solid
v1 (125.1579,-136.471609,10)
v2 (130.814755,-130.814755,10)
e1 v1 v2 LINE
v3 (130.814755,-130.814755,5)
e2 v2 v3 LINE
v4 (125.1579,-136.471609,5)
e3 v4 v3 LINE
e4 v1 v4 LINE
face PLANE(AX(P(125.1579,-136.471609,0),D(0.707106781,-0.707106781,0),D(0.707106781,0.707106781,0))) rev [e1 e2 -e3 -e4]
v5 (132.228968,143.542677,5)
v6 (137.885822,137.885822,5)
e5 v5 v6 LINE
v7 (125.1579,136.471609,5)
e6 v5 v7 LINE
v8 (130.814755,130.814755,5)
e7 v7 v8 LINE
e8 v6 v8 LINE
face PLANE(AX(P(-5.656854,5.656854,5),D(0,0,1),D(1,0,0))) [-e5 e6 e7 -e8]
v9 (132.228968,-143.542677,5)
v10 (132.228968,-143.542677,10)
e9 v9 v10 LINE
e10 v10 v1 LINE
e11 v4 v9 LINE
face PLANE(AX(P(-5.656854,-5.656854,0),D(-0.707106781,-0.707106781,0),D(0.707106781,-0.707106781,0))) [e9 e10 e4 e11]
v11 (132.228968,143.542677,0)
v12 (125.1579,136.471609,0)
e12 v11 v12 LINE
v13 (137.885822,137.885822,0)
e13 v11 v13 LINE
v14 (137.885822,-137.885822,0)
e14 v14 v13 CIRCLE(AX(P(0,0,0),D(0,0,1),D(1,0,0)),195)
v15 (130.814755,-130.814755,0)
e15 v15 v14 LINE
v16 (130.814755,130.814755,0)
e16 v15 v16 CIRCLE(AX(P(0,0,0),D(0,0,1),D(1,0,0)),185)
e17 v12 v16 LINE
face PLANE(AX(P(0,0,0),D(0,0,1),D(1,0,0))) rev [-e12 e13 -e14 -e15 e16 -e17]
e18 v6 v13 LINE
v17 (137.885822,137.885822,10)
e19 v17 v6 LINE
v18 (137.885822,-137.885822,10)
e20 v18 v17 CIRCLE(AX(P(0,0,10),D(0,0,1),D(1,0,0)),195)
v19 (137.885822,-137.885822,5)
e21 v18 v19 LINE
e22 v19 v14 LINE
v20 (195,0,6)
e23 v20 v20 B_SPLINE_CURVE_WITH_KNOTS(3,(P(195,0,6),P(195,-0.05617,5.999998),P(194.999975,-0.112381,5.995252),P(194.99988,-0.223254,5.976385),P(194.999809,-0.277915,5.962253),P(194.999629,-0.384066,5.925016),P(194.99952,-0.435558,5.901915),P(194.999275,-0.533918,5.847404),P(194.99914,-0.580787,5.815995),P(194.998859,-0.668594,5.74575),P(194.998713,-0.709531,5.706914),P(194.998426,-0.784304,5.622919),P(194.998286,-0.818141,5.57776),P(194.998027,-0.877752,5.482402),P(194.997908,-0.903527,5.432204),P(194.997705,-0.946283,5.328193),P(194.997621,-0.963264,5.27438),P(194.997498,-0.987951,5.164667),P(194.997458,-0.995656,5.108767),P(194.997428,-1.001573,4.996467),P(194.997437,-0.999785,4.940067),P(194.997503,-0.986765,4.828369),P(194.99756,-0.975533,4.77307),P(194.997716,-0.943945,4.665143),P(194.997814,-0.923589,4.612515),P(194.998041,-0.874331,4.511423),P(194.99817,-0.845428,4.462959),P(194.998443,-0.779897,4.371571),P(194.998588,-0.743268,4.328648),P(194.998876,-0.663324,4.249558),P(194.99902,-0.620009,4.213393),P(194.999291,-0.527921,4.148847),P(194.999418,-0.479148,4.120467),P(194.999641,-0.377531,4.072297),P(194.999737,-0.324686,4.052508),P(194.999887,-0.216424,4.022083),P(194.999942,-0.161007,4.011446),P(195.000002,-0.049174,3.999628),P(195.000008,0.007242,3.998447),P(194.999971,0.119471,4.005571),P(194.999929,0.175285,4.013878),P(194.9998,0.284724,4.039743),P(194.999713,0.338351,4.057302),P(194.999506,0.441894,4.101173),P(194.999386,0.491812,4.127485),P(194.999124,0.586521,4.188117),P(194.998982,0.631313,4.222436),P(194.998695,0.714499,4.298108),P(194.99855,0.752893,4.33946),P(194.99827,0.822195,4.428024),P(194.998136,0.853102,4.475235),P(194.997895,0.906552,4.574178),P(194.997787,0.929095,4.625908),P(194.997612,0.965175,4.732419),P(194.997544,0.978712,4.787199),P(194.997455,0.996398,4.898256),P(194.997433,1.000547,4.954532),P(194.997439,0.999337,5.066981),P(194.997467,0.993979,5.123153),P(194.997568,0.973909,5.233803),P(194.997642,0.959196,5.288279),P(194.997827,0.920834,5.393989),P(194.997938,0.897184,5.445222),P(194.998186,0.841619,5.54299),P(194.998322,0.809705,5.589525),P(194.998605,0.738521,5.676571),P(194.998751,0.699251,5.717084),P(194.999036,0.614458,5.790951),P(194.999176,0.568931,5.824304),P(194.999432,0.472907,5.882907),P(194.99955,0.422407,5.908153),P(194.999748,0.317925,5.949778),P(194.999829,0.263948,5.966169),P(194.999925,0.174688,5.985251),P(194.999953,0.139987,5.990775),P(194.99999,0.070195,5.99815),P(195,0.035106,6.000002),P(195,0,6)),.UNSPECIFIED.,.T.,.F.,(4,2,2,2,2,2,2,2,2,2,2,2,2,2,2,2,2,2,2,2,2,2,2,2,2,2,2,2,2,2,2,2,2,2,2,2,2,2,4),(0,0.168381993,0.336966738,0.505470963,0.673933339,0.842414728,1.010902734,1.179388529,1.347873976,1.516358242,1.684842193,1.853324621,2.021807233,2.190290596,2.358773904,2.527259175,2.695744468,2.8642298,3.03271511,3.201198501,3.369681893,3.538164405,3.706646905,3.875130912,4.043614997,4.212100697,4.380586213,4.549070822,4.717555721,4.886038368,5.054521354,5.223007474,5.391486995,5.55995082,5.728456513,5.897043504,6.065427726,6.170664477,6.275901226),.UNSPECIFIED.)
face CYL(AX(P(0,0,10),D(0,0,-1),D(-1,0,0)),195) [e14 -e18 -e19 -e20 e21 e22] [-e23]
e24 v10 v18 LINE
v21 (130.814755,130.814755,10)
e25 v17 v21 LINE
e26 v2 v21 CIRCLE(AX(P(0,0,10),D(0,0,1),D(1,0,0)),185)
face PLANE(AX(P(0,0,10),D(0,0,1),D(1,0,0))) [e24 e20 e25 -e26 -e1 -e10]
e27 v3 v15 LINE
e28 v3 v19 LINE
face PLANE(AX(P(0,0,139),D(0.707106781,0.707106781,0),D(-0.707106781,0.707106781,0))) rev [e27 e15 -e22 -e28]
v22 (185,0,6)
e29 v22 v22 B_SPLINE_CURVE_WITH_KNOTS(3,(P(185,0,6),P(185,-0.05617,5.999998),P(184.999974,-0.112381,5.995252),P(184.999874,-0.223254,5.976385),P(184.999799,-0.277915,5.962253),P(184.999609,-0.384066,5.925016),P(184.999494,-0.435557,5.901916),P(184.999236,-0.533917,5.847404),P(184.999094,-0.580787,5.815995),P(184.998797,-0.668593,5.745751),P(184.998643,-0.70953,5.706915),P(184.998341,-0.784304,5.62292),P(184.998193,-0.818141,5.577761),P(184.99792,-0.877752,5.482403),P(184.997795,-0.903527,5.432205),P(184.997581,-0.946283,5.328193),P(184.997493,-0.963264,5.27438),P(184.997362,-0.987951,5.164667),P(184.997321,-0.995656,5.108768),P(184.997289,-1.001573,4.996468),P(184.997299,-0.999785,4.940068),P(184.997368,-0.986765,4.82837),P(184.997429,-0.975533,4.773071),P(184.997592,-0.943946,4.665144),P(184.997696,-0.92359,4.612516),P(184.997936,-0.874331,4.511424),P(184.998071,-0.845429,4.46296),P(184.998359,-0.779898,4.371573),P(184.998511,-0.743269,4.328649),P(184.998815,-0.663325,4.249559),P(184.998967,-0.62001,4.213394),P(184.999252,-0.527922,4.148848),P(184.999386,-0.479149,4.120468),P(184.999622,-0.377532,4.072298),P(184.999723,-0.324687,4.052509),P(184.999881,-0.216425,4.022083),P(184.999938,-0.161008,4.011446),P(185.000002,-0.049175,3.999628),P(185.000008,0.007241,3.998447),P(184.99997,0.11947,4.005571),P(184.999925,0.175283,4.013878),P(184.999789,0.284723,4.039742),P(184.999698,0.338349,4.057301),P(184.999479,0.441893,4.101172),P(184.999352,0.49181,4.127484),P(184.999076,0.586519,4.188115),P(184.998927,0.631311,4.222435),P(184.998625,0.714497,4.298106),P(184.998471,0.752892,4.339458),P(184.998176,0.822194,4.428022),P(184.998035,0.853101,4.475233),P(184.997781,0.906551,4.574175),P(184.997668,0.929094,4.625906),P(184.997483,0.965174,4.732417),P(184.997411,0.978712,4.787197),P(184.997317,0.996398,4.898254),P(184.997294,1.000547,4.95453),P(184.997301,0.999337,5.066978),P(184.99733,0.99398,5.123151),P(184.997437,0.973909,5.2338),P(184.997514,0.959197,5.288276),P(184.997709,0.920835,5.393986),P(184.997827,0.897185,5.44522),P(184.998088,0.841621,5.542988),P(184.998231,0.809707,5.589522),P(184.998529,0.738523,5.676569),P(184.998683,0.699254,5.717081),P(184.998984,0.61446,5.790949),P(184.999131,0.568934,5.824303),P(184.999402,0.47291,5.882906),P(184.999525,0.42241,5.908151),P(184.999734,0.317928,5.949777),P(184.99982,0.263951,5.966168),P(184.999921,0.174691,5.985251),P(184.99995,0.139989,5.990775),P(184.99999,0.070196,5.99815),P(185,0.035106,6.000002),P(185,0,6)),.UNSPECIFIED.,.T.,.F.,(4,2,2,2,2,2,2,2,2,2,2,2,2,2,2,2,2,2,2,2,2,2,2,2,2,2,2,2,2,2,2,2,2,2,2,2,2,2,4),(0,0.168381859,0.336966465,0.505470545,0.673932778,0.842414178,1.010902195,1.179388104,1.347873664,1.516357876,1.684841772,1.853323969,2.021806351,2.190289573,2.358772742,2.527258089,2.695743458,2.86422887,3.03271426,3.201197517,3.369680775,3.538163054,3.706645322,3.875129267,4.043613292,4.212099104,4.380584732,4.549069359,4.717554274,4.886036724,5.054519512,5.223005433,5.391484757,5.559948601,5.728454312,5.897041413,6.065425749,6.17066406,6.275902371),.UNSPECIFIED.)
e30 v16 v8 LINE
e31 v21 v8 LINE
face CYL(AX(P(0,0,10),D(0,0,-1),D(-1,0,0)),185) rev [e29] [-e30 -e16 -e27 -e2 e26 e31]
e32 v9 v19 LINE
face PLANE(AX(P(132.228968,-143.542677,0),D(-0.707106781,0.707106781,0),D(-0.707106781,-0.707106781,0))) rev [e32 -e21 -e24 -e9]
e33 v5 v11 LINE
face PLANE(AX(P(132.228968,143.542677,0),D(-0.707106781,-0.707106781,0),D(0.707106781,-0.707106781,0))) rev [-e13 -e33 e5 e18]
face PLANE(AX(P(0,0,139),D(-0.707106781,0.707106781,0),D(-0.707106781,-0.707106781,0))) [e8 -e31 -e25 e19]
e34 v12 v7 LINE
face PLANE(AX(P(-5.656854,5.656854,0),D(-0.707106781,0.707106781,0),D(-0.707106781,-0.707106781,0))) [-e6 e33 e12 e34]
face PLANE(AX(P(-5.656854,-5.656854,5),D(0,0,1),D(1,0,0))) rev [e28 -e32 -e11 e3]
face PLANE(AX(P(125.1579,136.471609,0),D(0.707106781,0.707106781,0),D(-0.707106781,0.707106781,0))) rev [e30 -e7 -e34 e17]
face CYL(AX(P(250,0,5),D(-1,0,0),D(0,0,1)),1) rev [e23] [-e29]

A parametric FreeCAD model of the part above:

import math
import FreeCAD as App
import Part
import Sketcher

V = App.Vector
Q = App.Units.Quantity

doc = App.newDocument("Part")
params = doc.addObject("Spreadsheet::Sheet", "Params")
for row, (alias, value) in enumerate([
    ("sketch1_diameter", "390 mm"),
    ("sketch1_diameter2", "370 mm"),
    ("pad1_length", "10 mm"),
    ("sketch2_diameter", "2 mm"),
    ("sketch3_diameter", "2 mm"),
    ("sketch4_radius", "195 mm"),
    ("sketch4_radius2", "185 mm"),
    ("pocket3_length", "139 mm"),
    ("sketch5_width", "5 mm"),
    ("sketch5_height", "10 mm"),
    ("pad2_length", "8 mm"),
    ("sketch6_width", "5 mm"),
    ("sketch6_height", "10 mm"),
    ("pad3_length", "8 mm"),
], start=1):
    params.set(f"A{row}", alias)
    params.set(f"B{row}", "=" + value)
    params.setAlias(f"B{row}", alias)

body = doc.addObject("PartDesign::Body", "Body")

# Sketch on XY plane
sketch1 = body.newObject("Sketcher::SketchObject", "Sketch")
sketch1.AttachmentSupport = (doc.getObject("XY_Plane"), [""])
sketch1.MapMode = "FlatFace"
sketch1.addGeometry(Part.Circle(V(0, 0, 0), V(0, 0, 1), 195), False)
sketch1.addGeometry(Part.Circle(V(0, 0, 0), V(0, 0, 1), 185), False)
sketch1.addConstraint(Sketcher.Constraint("Coincident", 0, 3, -1, 1))
sketch1.addConstraint(Sketcher.Constraint("Coincident", 1, 3, -1, 1))
sketch1.addConstraint(Sketcher.Constraint("Diameter", 0, Q("390 mm")))
sketch1.addConstraint(Sketcher.Constraint("Diameter", 1, Q("370 mm")))
sketch1.setExpression("Constraints[2]", "Params.sketch1_diameter")
sketch1.setExpression("Constraints[3]", "Params.sketch1_diameter2")
pad1 = body.newObject("PartDesign::Pad", "Pad")
pad1.Profile = sketch1
pad1.setExpression("Length", "Params.pad1_length")

# Sketch on YZ plane
sketch2 = body.newObject("Sketcher::SketchObject", "Sketch001")
sketch2.AttachmentSupport = (doc.getObject("YZ_Plane"), [""])
sketch2.MapMode = "FlatFace"
sketch2.addGeometry(Part.Circle(V(0, 5, 0), V(0, 0, 1), 1), False)
sketch2.addConstraint(Sketcher.Constraint("PointOnObject", 0, 3, -2))
sketch2.addConstraint(Sketcher.Constraint("Diameter", 0, Q("2 mm")))
sketch2.addConstraint(Sketcher.Constraint("DistanceY", -1, 1, 0, 3, Q("5 mm")))
sketch2.setExpression("Constraints[1]", "Params.sketch2_diameter")
pocket1 = body.newObject("PartDesign::Pocket", "Pocket")
pocket1.Profile = sketch2
pocket1.Type = "ThroughAll"
pocket1.Midplane = True

# Sketch on XZ plane
sketch3 = body.newObject("Sketcher::SketchObject", "Sketch002")
sketch3.AttachmentSupport = (doc.getObject("XZ_Plane"), [""])
sketch3.MapMode = "FlatFace"
sketch3.addGeometry(Part.Circle(V(0, 5, 0), V(0, 0, 1), 1), False)
sketch3.addConstraint(Sketcher.Constraint("PointOnObject", 0, 3, -2))
sketch3.addConstraint(Sketcher.Constraint("Diameter", 0, Q("2 mm")))
sketch3.addConstraint(Sketcher.Constraint("DistanceY", -1, 1, 0, 3, Q("5 mm")))
sketch3.setExpression("Constraints[1]", "Params.sketch3_diameter")
pocket2 = body.newObject("PartDesign::Pocket", "Pocket001")
pocket2.Profile = sketch3
pocket2.Type = "ThroughAll"
pocket2.Midplane = True

# Sketch on XY plane
sketch4 = body.newObject("Sketcher::SketchObject", "Sketch003")
sketch4.AttachmentSupport = (doc.getObject("XY_Plane"), [""])
sketch4.MapMode = "FlatFace"
sketch4.addGeometry(Part.ArcOfCircle(Part.Circle(V(0, 0, 0), V(0, 0, 1), 195), math.radians(45), math.radians(315)), False)
sketch4.addGeometry(Part.LineSegment(V(138, 138, 0), V(131, 131, 0)), False)
sketch4.addGeometry(Part.ArcOfCircle(Part.Circle(V(0, 0, 0), V(0, 0, 1), 185), math.radians(45), math.radians(315)), False)
sketch4.addGeometry(Part.LineSegment(V(131, -131, 0), V(138, -138, 0)), False)
sketch4.addConstraint(Sketcher.Constraint("Coincident", 0, 1, 1, 1))
sketch4.addConstraint(Sketcher.Constraint("Coincident", 1, 2, 2, 1))
sketch4.addConstraint(Sketcher.Constraint("Coincident", 2, 2, 3, 1))
sketch4.addConstraint(Sketcher.Constraint("Coincident", 3, 2, 0, 2))
sketch4.addConstraint(Sketcher.Constraint("Coincident", 0, 3, -1, 1))
sketch4.addConstraint(Sketcher.Constraint("Coincident", 2, 3, -1, 1))
sketch4.addConstraint(Sketcher.Constraint("Perpendicular", 1, 3))
sketch4.addConstraint(Sketcher.Constraint("Vertical", 1, 2, 2, 2))
sketch4.addConstraint(Sketcher.Constraint("Vertical", 0, 1, 3, 2))
sketch4.addConstraint(Sketcher.Constraint("Radius", 0, Q("195 mm")))
sketch4.addConstraint(Sketcher.Constraint("Radius", 2, Q("185 mm")))
sketch4.addConstraint(Sketcher.Constraint("DistanceY", 2, 2, 1, 2, Q("261.629509 mm")))
sketch4.setExpression("Constraints[9]", "Params.sketch4_radius")
sketch4.setExpression("Constraints[10]", "Params.sketch4_radius2")
pocket3 = body.newObject("PartDesign::Pocket", "Pocket002")
pocket3.Profile = sketch4
pocket3.setExpression("Length", "Params.pocket3_length")
pocket3.Reversed = True

# Sketch on an angled plane
sketch5 = body.newObject("Sketcher::SketchObject", "Sketch004")
sketch5.Placement = App.Placement(V(0, 0, 0), App.Rotation(V(0, 0, 1), V(-0.707106781, 0.707106781, 0), V(-0.707106781, -0.707106781, 0), "ZXY"))
sketch5.addGeometry(Part.LineSegment(V(5, -185, 0), V(5, -195, 0)), False)
sketch5.addGeometry(Part.LineSegment(V(5, -195, 0), V(10, -195, 0)), False)
sketch5.addGeometry(Part.LineSegment(V(10, -195, 0), V(10, -185, 0)), False)
sketch5.addGeometry(Part.LineSegment(V(10, -185, 0), V(5, -185, 0)), False)
sketch5.addConstraint(Sketcher.Constraint("Coincident", 0, 2, 1, 1))
sketch5.addConstraint(Sketcher.Constraint("Coincident", 1, 2, 2, 1))
sketch5.addConstraint(Sketcher.Constraint("Coincident", 2, 2, 3, 1))
sketch5.addConstraint(Sketcher.Constraint("Coincident", 3, 2, 0, 1))
sketch5.addConstraint(Sketcher.Constraint("Vertical", 0))
sketch5.addConstraint(Sketcher.Constraint("Horizontal", 1))
sketch5.addConstraint(Sketcher.Constraint("Vertical", 2))
sketch5.addConstraint(Sketcher.Constraint("Horizontal", 3))
sketch5.addConstraint(Sketcher.Constraint("DistanceX", 1, 1, 1, 2, Q("5 mm")))
sketch5.addConstraint(Sketcher.Constraint("DistanceY", 0, 2, 0, 1, Q("10 mm")))
sketch5.addConstraint(Sketcher.Constraint("DistanceX", -1, 1, 0, 2, Q("5 mm")))
sketch5.addConstraint(Sketcher.Constraint("DistanceY", 0, 2, -1, 1, Q("195 mm")))
sketch5.setExpression("Constraints[8]", "Params.sketch5_width")
sketch5.setExpression("Constraints[9]", "Params.sketch5_height")
pad2 = body.newObject("PartDesign::Pad", "Pad001")
pad2.Profile = sketch5
pad2.setExpression("Length", "Params.pad2_length")

# Sketch on an angled plane
sketch6 = body.newObject("Sketcher::SketchObject", "Sketch005")
sketch6.Placement = App.Placement(V(0, 0, 0), App.Rotation(V(0, 0, 1), V(0.707106781, 0.707106781, 0), V(-0.707106781, 0.707106781, 0), "ZXY"))
sketch6.addGeometry(Part.LineSegment(V(0, 195, 0), V(0, 185, 0)), False)
sketch6.addGeometry(Part.LineSegment(V(0, 185, 0), V(5, 185, 0)), False)
sketch6.addGeometry(Part.LineSegment(V(5, 185, 0), V(5, 195, 0)), False)
sketch6.addGeometry(Part.LineSegment(V(5, 195, 0), V(0, 195, 0)), False)
sketch6.addConstraint(Sketcher.Constraint("Coincident", 0, 2, 1, 1))
sketch6.addConstraint(Sketcher.Constraint("Coincident", 1, 2, 2, 1))
sketch6.addConstraint(Sketcher.Constraint("Coincident", 2, 2, 3, 1))
sketch6.addConstraint(Sketcher.Constraint("Coincident", 3, 2, 0, 1))
sketch6.addConstraint(Sketcher.Constraint("Vertical", 0))
sketch6.addConstraint(Sketcher.Constraint("Horizontal", 1))
sketch6.addConstraint(Sketcher.Constraint("Vertical", 2))
sketch6.addConstraint(Sketcher.Constraint("Horizontal", 3))
sketch6.addConstraint(Sketcher.Constraint("PointOnObject", 0, 2, -2))
sketch6.addConstraint(Sketcher.Constraint("DistanceX", 1, 1, 1, 2, Q("5 mm")))
sketch6.addConstraint(Sketcher.Constraint("DistanceY", 0, 2, 0, 1, Q("10 mm")))
sketch6.addConstraint(Sketcher.Constraint("DistanceY", -1, 1, 0, 2, Q("185 mm")))
sketch6.setExpression("Constraints[9]", "Params.sketch6_width")
sketch6.setExpression("Constraints[10]", "Params.sketch6_height")
pad3 = body.newObject("PartDesign::Pad", "Pad002")
pad3.Profile = sketch6
pad3.setExpression("Length", "Params.pad3_length")

doc.recompute()
